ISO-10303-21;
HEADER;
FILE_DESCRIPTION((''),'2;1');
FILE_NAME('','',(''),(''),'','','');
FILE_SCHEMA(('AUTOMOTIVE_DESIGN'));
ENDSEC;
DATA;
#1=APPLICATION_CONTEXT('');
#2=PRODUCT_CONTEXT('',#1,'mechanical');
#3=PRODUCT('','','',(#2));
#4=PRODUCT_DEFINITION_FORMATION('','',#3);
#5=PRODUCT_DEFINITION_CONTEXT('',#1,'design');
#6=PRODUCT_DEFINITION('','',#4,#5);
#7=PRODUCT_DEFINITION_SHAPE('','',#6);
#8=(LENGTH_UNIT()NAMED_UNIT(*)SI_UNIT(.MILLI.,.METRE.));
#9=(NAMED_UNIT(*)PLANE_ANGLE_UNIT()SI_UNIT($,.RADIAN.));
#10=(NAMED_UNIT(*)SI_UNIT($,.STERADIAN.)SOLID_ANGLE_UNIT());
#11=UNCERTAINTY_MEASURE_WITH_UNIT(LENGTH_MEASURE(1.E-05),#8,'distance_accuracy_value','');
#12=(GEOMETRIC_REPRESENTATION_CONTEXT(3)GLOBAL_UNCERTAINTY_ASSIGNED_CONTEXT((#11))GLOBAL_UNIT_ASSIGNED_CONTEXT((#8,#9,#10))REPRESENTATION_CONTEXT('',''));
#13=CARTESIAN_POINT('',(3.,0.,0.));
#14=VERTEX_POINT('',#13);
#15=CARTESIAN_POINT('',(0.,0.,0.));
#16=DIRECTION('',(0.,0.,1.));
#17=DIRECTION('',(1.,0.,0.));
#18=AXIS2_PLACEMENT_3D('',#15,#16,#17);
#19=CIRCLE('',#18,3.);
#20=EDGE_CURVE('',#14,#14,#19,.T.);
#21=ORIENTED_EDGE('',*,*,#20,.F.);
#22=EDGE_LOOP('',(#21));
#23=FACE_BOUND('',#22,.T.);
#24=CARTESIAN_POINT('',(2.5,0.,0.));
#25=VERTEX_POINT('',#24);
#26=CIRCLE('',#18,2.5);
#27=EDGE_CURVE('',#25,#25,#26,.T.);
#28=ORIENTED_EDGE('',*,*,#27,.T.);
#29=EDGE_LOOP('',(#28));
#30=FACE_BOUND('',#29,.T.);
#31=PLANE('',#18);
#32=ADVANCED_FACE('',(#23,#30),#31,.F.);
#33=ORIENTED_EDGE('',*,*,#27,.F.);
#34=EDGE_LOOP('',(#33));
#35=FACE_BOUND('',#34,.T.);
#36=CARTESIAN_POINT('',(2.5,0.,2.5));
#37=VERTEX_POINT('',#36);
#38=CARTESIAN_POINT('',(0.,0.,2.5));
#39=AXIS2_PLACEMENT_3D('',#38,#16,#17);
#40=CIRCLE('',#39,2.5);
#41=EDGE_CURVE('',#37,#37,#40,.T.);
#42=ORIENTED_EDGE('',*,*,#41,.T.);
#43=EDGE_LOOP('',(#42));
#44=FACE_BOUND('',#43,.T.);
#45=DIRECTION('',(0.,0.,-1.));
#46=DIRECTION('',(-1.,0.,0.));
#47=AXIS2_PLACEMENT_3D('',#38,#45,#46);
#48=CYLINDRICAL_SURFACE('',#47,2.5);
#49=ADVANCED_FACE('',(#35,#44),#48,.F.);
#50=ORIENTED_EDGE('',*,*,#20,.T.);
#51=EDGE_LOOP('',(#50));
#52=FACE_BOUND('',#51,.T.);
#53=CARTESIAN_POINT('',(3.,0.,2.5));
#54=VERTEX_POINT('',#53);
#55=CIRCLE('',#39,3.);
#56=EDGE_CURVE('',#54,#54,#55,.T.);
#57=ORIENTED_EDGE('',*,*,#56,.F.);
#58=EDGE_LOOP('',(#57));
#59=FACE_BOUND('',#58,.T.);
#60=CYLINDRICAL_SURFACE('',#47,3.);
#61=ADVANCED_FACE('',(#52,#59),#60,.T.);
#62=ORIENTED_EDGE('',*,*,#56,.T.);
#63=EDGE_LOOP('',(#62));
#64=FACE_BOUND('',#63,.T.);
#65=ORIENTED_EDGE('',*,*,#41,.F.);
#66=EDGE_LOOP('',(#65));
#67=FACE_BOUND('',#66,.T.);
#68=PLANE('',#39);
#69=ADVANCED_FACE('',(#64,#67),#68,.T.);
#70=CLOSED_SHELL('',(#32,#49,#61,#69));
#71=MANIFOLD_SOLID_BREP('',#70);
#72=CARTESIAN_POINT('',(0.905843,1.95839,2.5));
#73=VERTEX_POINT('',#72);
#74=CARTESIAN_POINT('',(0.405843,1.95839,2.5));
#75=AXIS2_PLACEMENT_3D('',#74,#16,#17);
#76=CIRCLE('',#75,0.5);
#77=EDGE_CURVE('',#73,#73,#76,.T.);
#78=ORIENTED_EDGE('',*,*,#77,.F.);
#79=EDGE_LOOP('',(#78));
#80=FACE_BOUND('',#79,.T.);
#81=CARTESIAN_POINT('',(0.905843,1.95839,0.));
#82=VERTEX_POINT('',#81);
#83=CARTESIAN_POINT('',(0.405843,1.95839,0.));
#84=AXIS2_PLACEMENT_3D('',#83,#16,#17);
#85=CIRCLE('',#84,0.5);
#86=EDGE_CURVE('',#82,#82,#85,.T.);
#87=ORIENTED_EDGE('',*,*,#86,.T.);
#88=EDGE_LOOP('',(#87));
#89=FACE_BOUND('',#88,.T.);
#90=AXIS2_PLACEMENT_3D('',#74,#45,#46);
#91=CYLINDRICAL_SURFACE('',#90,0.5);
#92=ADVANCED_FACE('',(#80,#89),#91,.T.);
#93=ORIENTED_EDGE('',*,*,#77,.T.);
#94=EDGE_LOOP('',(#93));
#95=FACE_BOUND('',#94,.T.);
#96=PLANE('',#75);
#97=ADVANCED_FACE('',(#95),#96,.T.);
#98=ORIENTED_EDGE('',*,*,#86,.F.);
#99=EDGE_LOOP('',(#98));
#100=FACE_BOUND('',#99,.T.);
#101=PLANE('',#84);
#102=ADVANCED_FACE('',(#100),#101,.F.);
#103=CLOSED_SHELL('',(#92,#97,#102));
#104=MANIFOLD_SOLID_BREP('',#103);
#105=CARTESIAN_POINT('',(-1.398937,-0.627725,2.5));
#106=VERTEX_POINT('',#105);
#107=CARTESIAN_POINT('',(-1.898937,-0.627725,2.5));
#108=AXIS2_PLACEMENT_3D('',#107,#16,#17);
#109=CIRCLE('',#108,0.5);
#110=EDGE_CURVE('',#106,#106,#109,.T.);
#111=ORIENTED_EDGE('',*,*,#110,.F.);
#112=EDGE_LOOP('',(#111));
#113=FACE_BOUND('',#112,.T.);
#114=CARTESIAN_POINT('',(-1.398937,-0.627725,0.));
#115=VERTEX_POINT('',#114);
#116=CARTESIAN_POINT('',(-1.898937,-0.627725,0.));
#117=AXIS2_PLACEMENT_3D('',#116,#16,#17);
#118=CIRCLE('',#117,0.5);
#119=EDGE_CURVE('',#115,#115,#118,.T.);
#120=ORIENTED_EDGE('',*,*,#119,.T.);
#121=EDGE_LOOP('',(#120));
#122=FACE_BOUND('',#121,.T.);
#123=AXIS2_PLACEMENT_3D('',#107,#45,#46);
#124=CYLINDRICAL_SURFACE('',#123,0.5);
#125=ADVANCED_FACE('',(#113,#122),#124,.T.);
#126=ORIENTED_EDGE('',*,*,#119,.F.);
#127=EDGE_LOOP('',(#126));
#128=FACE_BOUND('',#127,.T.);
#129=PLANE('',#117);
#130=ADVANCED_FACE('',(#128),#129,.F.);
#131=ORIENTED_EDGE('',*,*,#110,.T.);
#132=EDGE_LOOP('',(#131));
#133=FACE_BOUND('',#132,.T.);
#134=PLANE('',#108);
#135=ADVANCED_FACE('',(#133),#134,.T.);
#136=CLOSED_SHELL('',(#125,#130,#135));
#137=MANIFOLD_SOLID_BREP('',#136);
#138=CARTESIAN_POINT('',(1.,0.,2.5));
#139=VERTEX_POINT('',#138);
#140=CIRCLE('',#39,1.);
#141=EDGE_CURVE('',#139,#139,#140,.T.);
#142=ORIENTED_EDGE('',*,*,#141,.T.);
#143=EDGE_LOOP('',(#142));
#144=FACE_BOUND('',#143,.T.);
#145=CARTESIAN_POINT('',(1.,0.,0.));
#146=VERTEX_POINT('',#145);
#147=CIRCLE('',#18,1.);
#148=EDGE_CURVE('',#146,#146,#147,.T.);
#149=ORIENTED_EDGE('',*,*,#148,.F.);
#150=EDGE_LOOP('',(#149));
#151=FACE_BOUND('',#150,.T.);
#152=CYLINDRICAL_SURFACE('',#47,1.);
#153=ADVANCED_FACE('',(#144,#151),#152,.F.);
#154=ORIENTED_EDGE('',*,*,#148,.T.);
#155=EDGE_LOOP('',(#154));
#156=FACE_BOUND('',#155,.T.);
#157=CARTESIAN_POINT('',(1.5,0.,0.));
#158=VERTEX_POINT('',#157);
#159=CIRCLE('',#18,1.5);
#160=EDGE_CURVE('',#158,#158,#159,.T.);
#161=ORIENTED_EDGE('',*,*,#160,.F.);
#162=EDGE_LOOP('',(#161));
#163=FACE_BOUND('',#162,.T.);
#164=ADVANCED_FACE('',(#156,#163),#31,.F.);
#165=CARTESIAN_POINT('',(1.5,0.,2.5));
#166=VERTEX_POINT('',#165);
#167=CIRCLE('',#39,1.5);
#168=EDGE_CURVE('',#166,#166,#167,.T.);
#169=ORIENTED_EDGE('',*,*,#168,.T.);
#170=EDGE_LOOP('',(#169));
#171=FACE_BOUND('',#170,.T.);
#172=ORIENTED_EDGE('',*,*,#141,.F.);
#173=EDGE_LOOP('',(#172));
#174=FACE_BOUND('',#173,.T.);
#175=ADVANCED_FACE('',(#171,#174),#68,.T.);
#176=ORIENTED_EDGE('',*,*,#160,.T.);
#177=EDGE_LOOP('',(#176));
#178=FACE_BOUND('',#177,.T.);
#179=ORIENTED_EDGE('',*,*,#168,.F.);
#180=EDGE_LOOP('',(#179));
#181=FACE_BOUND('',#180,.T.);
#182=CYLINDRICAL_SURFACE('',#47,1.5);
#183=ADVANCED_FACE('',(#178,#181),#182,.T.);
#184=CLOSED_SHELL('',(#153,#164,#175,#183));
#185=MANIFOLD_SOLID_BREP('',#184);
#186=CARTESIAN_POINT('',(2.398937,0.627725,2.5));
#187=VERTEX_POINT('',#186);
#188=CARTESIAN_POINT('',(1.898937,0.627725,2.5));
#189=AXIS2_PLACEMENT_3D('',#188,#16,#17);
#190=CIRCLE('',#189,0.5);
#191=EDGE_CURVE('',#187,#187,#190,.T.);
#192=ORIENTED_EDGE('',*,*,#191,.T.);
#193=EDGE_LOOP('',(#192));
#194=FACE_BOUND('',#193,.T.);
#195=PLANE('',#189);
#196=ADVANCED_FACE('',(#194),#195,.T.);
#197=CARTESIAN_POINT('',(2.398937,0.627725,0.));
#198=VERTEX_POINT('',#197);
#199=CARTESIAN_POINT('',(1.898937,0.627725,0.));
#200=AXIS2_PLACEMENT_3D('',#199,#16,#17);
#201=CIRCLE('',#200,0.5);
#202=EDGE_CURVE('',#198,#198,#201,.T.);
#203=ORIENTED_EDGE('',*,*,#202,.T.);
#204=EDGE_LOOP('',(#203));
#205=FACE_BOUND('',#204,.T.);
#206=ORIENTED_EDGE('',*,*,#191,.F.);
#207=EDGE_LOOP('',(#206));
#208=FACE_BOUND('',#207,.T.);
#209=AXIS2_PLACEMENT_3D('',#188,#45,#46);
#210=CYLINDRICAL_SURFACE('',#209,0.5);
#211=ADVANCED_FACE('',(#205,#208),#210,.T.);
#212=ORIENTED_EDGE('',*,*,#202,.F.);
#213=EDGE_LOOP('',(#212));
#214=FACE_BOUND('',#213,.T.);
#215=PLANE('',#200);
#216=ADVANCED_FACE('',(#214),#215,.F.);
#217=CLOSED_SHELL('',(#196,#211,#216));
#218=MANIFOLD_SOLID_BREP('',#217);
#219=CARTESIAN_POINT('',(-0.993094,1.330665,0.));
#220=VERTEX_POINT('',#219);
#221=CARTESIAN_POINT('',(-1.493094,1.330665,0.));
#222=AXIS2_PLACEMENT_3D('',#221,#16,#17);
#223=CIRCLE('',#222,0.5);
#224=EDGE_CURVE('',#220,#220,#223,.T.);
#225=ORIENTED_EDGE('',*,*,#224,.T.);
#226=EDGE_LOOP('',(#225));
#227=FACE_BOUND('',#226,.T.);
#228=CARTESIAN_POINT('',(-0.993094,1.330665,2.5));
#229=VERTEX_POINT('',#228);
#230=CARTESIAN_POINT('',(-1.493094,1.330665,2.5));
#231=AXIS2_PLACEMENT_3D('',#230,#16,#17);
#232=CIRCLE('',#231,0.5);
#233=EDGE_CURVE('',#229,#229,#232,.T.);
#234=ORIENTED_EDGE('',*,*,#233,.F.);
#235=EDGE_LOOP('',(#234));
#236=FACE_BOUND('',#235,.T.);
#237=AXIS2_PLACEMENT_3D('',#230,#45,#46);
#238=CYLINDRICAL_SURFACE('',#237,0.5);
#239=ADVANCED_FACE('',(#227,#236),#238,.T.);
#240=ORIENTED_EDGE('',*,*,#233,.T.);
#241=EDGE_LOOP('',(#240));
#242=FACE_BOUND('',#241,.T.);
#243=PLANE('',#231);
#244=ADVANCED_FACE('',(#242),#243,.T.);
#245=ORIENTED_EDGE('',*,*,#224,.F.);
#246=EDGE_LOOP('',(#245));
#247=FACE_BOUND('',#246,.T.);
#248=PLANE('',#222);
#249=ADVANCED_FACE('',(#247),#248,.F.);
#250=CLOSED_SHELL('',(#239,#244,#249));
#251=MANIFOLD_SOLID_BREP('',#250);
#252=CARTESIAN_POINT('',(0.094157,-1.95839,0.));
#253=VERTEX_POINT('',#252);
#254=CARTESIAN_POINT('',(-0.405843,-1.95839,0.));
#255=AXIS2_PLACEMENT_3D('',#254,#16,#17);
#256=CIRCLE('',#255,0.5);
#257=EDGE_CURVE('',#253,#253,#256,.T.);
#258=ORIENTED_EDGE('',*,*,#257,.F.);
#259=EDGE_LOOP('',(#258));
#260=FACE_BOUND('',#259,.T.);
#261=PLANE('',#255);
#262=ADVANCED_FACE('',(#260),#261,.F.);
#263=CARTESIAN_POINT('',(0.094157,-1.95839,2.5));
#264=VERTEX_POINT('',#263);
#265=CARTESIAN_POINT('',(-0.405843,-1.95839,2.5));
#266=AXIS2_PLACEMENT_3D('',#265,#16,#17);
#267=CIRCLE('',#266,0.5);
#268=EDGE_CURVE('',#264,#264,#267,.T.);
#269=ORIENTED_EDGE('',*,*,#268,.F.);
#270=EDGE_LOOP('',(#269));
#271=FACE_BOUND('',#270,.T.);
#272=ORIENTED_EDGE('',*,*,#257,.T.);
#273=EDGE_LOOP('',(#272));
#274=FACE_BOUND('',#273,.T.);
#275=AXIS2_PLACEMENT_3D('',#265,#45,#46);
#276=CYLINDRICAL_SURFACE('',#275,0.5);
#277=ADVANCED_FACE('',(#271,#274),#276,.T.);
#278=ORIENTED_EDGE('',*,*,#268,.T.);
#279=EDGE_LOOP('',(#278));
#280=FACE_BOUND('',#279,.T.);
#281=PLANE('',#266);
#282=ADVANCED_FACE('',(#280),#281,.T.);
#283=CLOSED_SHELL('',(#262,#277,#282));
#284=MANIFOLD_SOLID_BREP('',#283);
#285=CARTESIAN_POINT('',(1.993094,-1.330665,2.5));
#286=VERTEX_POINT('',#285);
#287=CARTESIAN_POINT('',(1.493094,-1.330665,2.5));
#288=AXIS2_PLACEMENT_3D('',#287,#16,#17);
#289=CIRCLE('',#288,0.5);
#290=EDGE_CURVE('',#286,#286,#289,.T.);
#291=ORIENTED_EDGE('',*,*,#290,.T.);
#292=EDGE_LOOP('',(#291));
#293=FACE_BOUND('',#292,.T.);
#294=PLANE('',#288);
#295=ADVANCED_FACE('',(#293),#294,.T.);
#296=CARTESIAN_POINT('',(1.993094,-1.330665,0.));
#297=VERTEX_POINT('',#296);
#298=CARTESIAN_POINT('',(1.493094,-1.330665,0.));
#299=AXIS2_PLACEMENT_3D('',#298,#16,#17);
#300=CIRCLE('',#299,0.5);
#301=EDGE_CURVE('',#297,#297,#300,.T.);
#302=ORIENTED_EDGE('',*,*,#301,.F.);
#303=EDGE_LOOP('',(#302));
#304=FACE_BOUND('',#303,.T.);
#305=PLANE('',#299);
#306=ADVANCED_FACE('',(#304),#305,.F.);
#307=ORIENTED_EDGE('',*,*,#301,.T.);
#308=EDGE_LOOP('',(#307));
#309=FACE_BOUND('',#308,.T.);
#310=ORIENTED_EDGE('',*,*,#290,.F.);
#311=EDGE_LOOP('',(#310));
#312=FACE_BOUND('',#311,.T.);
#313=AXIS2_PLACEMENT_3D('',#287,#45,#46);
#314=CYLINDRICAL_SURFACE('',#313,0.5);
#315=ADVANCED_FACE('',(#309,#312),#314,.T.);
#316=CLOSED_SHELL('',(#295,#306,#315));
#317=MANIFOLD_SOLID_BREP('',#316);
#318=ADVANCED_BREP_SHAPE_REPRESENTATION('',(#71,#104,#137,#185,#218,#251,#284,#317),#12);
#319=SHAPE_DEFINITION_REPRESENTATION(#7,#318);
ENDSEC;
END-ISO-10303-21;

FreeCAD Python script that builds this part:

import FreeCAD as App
import Part
import Sketcher
Q = App.Units.Quantity

doc = App.newDocument("Part")
body = doc.addObject("PartDesign::Body", "Body")

# Sketch on XY plane
sketch1 = body.newObject("Sketcher::SketchObject", "Sketch")
sketch1.AttachmentSupport = (doc.getObject("XY_Plane"), [""])
sketch1.MapMode = "FlatFace"
sketch1.addGeometry(Part.Circle(App.Vector(0, 0, 0), App.Vector(0, 0, 1), 3), False)
sketch1.addGeometry(Part.Circle(App.Vector(0, 0, 0), App.Vector(0, 0, 1), 2.5), False)
sketch1.addConstraint(Sketcher.Constraint("Coincident", 0, 3, -1, 1))
sketch1.addConstraint(Sketcher.Constraint("Coincident", 1, 3, -1, 1))
sketch1.addConstraint(Sketcher.Constraint("Diameter", 0, Q("6 mm")))
sketch1.addConstraint(Sketcher.Constraint("Diameter", 1, Q("5 mm")))
pad1 = body.newObject("PartDesign::Pad", "Pad")
pad1.Profile = sketch1
pad1.Length = 2.5
body2 = doc.addObject("PartDesign::Body", "Body001")

# Sketch on XY plane
sketch2 = body2.newObject("Sketcher::SketchObject", "Sketch001")
sketch2.AttachmentSupport = (doc.getObject("XY_Plane001"), [""])
sketch2.MapMode = "FlatFace"
sketch2.addGeometry(Part.Circle(App.Vector(0, 0, 0), App.Vector(0, 0, 1), 1.5), False)
sketch2.addGeometry(Part.Circle(App.Vector(0, 0, 0), App.Vector(0, 0, 1), 1), False)
sketch2.addConstraint(Sketcher.Constraint("Coincident", 0, 3, -1, 1))
sketch2.addConstraint(Sketcher.Constraint("Coincident", 1, 3, -1, 1))
sketch2.addConstraint(Sketcher.Constraint("Diameter", 0, Q("3 mm")))
sketch2.addConstraint(Sketcher.Constraint("Diameter", 1, Q("2 mm")))
pad2 = body2.newObject("PartDesign::Pad", "Pad001")
pad2.Profile = sketch2
pad2.Length = 2.5
body3 = doc.addObject("PartDesign::Body", "Body002")

# Sketch on XY plane
sketch3 = body3.newObject("Sketcher::SketchObject", "Sketch002")
sketch3.AttachmentSupport = (doc.getObject("XY_Plane002"), [""])
sketch3.MapMode = "FlatFace"
sketch3.addGeometry(Part.Circle(App.Vector(-1.493094, 1.330665, 0), App.Vector(0, 0, 1), 0.5), False)
sketch3.addConstraint(Sketcher.Constraint("Diameter", 0, Q("1 mm")))
sketch3.addConstraint(Sketcher.Constraint("DistanceX", 0, 3, -1, 1, Q("1.493094 mm")))
sketch3.addConstraint(Sketcher.Constraint("DistanceY", -1, 1, 0, 3, Q("1.330665 mm")))
pad3 = body3.newObject("PartDesign::Pad", "Pad002")
pad3.Profile = sketch3
pad3.Length = 2.5
body4 = doc.addObject("PartDesign::Body", "Body003")

# Sketch on XY plane
sketch4 = body4.newObject("Sketcher::SketchObject", "Sketch003")
sketch4.AttachmentSupport = (doc.getObject("XY_Plane003"), [""])
sketch4.MapMode = "FlatFace"
sketch4.addGeometry(Part.Circle(App.Vector(0.405843, 1.95839, 0), App.Vector(0, 0, 1), 0.5), False)
sketch4.addConstraint(Sketcher.Constraint("Diameter", 0, Q("1 mm")))
sketch4.addConstraint(Sketcher.Constraint("DistanceY", -1, 1, 0, 3, Q("1.95839 mm")))
sketch4.addConstraint(Sketcher.Constraint("DistanceX", -1, 1, 0, 3, Q("0.405843 mm")))
pad4 = body4.newObject("PartDesign::Pad", "Pad003")
pad4.Profile = sketch4
pad4.Length = 2.5
body5 = doc.addObject("PartDesign::Body", "Body004")

# Sketch on XY plane
sketch5 = body5.newObject("Sketcher::SketchObject", "Sketch004")
sketch5.AttachmentSupport = (doc.getObject("XY_Plane004"), [""])
sketch5.MapMode = "FlatFace"
sketch5.addGeometry(Part.Circle(App.Vector(1.898937, 0.627725, 0), App.Vector(0, 0, 1), 0.5), False)
sketch5.addConstraint(Sketcher.Constraint("Diameter", 0, Q("1 mm")))
sketch5.addConstraint(Sketcher.Constraint("DistanceX", -1, 1, 0, 3, Q("1.898937 mm")))
sketch5.addConstraint(Sketcher.Constraint("DistanceY", -1, 1, 0, 3, Q("0.627725 mm")))
pad5 = body5.newObject("PartDesign::Pad", "Pad004")
pad5.Profile = sketch5
pad5.Length = 2.5
body6 = doc.addObject("PartDesign::Body", "Body005")

# Sketch on XY plane
sketch6 = body6.newObject("Sketcher::SketchObject", "Sketch005")
sketch6.AttachmentSupport = (doc.getObject("XY_Plane005"), [""])
sketch6.MapMode = "FlatFace"
sketch6.addGeometry(Part.Circle(App.Vector(1.493094, -1.330665, 0), App.Vector(0, 0, 1), 0.5), False)
sketch6.addConstraint(Sketcher.Constraint("Diameter", 0, Q("1 mm")))
sketch6.addConstraint(Sketcher.Constraint("DistanceX", -1, 1, 0, 3, Q("1.493094 mm")))
sketch6.addConstraint(Sketcher.Constraint("DistanceY", 0, 3, -1, 1, Q("1.330665 mm")))
pad6 = body6.newObject("PartDesign::Pad", "Pad005")
pad6.Profile = sketch6
pad6.Length = 2.5
body7 = doc.addObject("PartDesign::Body", "Body006")

# Sketch on XY plane
sketch7 = body7.newObject("Sketcher::SketchObject", "Sketch006")
sketch7.AttachmentSupport = (doc.getObject("XY_Plane006"), [""])
sketch7.MapMode = "FlatFace"
sketch7.addGeometry(Part.Circle(App.Vector(-0.405843, -1.95839, 0), App.Vector(0, 0, 1), 0.5), False)
sketch7.addConstraint(Sketcher.Constraint("Diameter", 0, Q("1 mm")))
sketch7.addConstraint(Sketcher.Constraint("DistanceY", 0, 3, -1, 1, Q("1.95839 mm")))
sketch7.addConstraint(Sketcher.Constraint("DistanceX", 0, 3, -1, 1, Q("0.405843 mm")))
pad7 = body7.newObject("PartDesign::Pad", "Pad006")
pad7.Profile = sketch7
pad7.Length = 2.5
body8 = doc.addObject("PartDesign::Body", "Body007")

# Sketch on XY plane
sketch8 = body8.newObject("Sketcher::SketchObject", "Sketch007")
sketch8.AttachmentSupport = (doc.getObject("XY_Plane007"), [""])
sketch8.MapMode = "FlatFace"
sketch8.addGeometry(Part.Circle(App.Vector(-1.898937, -0.627725, 0), App.Vector(0, 0, 1), 0.5), False)
sketch8.addConstraint(Sketcher.Constraint("Diameter", 0, Q("1 mm")))
sketch8.addConstraint(Sketcher.Constraint("DistanceX", 0, 3, -1, 1, Q("1.898937 mm")))
sketch8.addConstraint(Sketcher.Constraint("DistanceY", 0, 3, -1, 1, Q("0.627725 mm")))
pad8 = body8.newObject("PartDesign::Pad", "Pad007")
pad8.Profile = sketch8
pad8.Length = 2.5

doc.recompute()
